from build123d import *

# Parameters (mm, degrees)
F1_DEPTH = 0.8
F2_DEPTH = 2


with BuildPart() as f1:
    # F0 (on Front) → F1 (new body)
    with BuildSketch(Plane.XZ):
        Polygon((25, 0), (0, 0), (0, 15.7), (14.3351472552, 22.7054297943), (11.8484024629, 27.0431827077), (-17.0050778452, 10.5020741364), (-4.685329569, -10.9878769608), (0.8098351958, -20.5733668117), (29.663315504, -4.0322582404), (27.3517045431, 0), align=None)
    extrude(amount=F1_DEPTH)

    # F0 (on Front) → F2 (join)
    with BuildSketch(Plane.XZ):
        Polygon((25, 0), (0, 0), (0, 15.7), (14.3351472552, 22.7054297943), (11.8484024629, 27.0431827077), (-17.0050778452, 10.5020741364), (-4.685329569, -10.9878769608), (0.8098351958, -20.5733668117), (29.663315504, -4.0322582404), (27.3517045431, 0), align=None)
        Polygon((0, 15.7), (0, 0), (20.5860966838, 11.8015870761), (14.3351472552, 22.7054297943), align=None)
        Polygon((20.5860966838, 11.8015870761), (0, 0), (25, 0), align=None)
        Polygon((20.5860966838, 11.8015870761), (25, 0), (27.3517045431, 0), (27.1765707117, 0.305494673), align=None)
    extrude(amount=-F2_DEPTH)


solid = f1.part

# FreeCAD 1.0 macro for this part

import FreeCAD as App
import Part
import Sketcher
from FreeCAD import Vector


def add_polygon(sketch, points):
    """Adds a closed chain of lines whose ends are joined by coincident constraints."""
    first, n = sketch.GeometryCount, len(points)
    for a, b in zip(points, points[1:] + points[:1]):
        sketch.addGeometry(Part.LineSegment(App.Vector(*a, 0), App.Vector(*b, 0)), False)
    for i in range(n):
        sketch.addConstraint(Sketcher.Constraint("Coincident", first + i, 2, first + (i + 1) % n, 1))

doc = App.newDocument("Part")
body = doc.addObject("PartDesign::Body", "Body")

sketch1 = body.newObject("Sketcher::SketchObject", "Sketch")
sketch1.AttachmentSupport = (doc.getObject("XZ_Plane"), [""])
sketch1.MapMode = "FlatFace"
add_polygon(sketch1, [(0, 0), (0, 15.7), (14.335147, 22.70543), (11.848402, 27.043183), (-17.005078, 10.502074), (-4.68533, -10.987877), (0.809835, -20.573367), (29.663316, -4.032258), (27.351705, 0)])
sketch1.addConstraint([
    Sketcher.Constraint("Vertical", 0),
    Sketcher.Constraint("Horizontal", 8),
    Sketcher.Constraint("Coincident", 8, 2, -1, 1),
    Sketcher.Constraint("Perpendicular", 2, 3),
    Sketcher.Constraint("Perpendicular", 3, 4),
    Sketcher.Constraint("Parallel", 4, 5),
    Sketcher.Constraint("Perpendicular", 5, 6),
    Sketcher.Constraint("Perpendicular", 6, 7),
    Sketcher.Constraint("Equal", 3, 6),
    Sketcher.Constraint("Distance", 2, 5.0),
    Sketcher.Constraint("DistanceY", 0, 1, 0, 2, 15.7),
    Sketcher.Constraint("Distance", 1, 15.955328),
    Sketcher.Constraint("Distance", 5, 11.048912),
    Sketcher.Constraint("DistanceX", 8, 2, 8, 1, 27.351705),
    Sketcher.Constraint("DistanceY", -1, 1, 1, 2, 22.70543),
    Sketcher.Constraint("DistanceX", 4, 2, -1, 1, 4.68533),
    Sketcher.Constraint("DistanceY", 6, 2, -1, 1, 4.032258),
])
pad1 = body.newObject("PartDesign::Pad", "Pad")
pad1.Profile = sketch1
pad1.Length = 0.8

sketch2 = body.newObject("Sketcher::SketchObject", "Sketch001")
sketch2.AttachmentSupport = (doc.getObject("XZ_Plane"), [""])
sketch2.MapMode = "FlatFace"
add_polygon(sketch2, [(14.335147, 22.70543), (11.848402, 27.043183), (-17.005078, 10.502074), (-4.68533, -10.987877), (0.809835, -20.573367), (29.663316, -4.032258), (27.351705, 0), (27.176571, 0.305495), (20.586097, 11.801587)])
sketch2.addConstraint([
    Sketcher.Constraint("PointOnObject", 5, 2, -1),
    Sketcher.Constraint("Perpendicular", 0, 1),
    Sketcher.Constraint("Perpendicular", 1, 2),
    Sketcher.Constraint("Parallel", 2, 3),
    Sketcher.Constraint("Perpendicular", 3, 4),
    Sketcher.Constraint("Perpendicular", 4, 5),
    Sketcher.Constraint("Parallel", 5, 6),
    Sketcher.Constraint("Parallel", 6, 7),
    Sketcher.Constraint("Parallel", 7, 8),
    Sketcher.Constraint("Distance", 0, 5.0),
    Sketcher.Constraint("DistanceX", 2, 2, 6, 2, 31.8619),
    Sketcher.Constraint("Distance", 3, 11.048912),
    Sketcher.Constraint("Distance", 8, 12.568538),
    Sketcher.Constraint("DistanceX", 2, 2, -1, 1, 4.68533),
    Sketcher.Constraint("DistanceY", 4, 2, -1, 1, 4.032258),
    Sketcher.Constraint("DistanceY", -1, 1, 8, 2, 22.70543),
    Sketcher.Constraint("DistanceX", 1, 2, 0, 2, 28.85348),
    Sketcher.Constraint("DistanceY", 1, 2, 0, 2, 16.541109),
])
pad2 = body.newObject("PartDesign::Pad", "Pad001")
pad2.Profile = sketch2
pad2.Length = 2
pad2.Reversed = True

doc.recompute()
